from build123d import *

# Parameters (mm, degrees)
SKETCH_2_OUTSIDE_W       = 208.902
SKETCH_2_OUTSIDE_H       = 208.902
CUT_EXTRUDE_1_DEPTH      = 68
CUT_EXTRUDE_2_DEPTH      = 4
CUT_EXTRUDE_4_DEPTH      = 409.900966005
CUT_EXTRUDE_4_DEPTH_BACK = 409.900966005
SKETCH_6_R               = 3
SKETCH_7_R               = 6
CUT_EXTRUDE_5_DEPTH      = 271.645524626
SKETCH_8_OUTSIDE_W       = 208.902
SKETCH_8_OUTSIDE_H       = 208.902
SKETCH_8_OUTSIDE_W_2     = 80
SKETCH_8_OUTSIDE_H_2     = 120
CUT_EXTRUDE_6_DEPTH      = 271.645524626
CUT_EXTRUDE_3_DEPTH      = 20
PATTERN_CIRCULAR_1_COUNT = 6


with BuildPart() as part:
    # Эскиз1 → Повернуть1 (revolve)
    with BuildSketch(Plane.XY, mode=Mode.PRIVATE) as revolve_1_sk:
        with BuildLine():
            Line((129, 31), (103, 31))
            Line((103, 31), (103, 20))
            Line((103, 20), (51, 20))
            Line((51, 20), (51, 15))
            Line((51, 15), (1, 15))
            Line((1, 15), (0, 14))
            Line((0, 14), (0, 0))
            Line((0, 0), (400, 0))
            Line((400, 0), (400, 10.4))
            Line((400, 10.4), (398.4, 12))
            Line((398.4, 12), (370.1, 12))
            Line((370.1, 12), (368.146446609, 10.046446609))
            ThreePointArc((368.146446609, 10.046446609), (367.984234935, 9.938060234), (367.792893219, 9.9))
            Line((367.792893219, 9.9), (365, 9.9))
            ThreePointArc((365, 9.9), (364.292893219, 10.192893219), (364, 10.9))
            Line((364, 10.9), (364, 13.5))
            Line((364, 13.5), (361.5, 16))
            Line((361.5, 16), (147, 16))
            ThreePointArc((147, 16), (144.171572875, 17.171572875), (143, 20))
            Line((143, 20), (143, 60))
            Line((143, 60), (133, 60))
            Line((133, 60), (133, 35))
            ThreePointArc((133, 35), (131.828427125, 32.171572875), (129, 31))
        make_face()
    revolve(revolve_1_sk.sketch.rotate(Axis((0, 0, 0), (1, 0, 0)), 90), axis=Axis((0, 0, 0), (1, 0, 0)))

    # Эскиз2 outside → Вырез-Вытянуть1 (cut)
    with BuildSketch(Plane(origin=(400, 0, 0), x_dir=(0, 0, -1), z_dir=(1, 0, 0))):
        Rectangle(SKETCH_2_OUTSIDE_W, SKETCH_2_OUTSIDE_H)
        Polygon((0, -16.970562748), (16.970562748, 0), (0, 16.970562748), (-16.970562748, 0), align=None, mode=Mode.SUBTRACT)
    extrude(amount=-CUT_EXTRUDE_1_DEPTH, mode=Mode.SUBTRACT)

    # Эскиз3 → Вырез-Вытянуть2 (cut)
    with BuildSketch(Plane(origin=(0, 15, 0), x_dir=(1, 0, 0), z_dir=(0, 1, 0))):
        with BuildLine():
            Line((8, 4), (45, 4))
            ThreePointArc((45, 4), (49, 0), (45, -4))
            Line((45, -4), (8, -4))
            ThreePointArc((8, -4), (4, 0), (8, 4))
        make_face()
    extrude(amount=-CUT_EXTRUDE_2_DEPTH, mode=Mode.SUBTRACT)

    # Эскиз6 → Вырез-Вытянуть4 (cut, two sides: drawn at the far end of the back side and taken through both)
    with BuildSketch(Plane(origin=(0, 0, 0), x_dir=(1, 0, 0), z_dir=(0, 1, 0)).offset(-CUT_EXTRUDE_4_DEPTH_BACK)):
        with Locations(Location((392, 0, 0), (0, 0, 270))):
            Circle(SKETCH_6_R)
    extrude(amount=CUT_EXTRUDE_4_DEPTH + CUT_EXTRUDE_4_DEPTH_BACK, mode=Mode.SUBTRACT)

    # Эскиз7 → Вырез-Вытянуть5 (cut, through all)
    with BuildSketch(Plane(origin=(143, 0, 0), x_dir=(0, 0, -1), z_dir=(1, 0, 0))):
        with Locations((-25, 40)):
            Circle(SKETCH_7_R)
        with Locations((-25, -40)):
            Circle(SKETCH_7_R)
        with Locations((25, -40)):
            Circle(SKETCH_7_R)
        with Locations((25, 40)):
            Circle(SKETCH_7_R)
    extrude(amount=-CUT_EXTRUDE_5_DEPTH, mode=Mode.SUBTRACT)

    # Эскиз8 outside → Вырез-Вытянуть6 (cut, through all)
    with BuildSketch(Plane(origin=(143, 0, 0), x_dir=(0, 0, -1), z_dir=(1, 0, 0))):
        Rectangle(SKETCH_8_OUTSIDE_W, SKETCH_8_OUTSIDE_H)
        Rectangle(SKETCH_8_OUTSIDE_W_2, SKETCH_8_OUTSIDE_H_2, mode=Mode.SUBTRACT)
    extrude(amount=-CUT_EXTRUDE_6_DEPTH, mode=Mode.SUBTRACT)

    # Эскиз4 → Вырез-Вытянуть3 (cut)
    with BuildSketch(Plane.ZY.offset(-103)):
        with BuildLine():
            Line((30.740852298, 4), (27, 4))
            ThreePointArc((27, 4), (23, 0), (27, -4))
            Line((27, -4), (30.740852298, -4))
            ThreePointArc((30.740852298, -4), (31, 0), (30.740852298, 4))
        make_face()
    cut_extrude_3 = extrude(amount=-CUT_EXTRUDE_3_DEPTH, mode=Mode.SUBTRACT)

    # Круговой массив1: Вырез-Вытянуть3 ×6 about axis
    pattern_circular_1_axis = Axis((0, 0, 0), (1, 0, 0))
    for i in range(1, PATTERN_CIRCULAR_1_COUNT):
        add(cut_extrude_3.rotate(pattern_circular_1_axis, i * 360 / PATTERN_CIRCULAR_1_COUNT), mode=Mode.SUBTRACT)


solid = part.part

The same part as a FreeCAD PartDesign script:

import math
import FreeCAD as App
import Part
import Sketcher
Q = App.Units.Quantity

doc = App.newDocument("Part")
body = doc.addObject("PartDesign::Body", "Body")

# Sketch on XY plane
sketch1 = body.newObject("Sketcher::SketchObject", "Sketch")
sketch1.AttachmentSupport = (doc.getObject("XY_Plane"), [""])
sketch1.MapMode = "FlatFace"
sketch1.addGeometry([
    Part.LineSegment(App.Vector(129, 31, 0), App.Vector(103, 31, 0)),  # 0
    Part.LineSegment(App.Vector(103, 31, 0), App.Vector(103, 20, 0)),  # 1
    Part.LineSegment(App.Vector(103, 20, 0), App.Vector(51, 20, 0)),  # 2
    Part.LineSegment(App.Vector(51, 20, 0), App.Vector(51, 15, 0)),  # 3
    Part.LineSegment(App.Vector(51, 15, 0), App.Vector(1, 15, 0)),  # 4
    Part.LineSegment(App.Vector(1, 15, 0), App.Vector(0, 14, 0)),  # 5
    Part.LineSegment(App.Vector(0, 14, 0), App.Vector(0, 0, 0)),  # 6
    Part.LineSegment(App.Vector(0, 0, 0), App.Vector(400, 0, 0)),  # 7
    Part.LineSegment(App.Vector(400, 0, 0), App.Vector(400, 10.4, 0)),  # 8
    Part.LineSegment(App.Vector(400, 10.4, 0), App.Vector(398.4, 12, 0)),  # 9
    Part.LineSegment(App.Vector(398.4, 12, 0), App.Vector(370.1, 12, 0)),  # 10
    Part.LineSegment(App.Vector(370.1, 12, 0), App.Vector(368.15, 10.05, 0)),  # 11
    Part.ArcOfCircle(Part.Circle(App.Vector(367.79, 10.4, 0), App.Vector(0, 0, 1), 0.5), math.radians(-90), math.radians(-45)),  # 12
    Part.LineSegment(App.Vector(367.79, 9.9, 0), App.Vector(365, 9.9, 0)),  # 13
    Part.ArcOfCircle(Part.Circle(App.Vector(365, 10.9, 0), App.Vector(0, 0, 1), 1), math.radians(-180), math.radians(-90)),  # 14
    Part.LineSegment(App.Vector(364, 10.9, 0), App.Vector(364, 13.5, 0)),  # 15
    Part.LineSegment(App.Vector(364, 13.5, 0), App.Vector(361.5, 16, 0)),  # 16
    Part.LineSegment(App.Vector(361.5, 16, 0), App.Vector(147, 16, 0)),  # 17
    Part.ArcOfCircle(Part.Circle(App.Vector(147, 20, 0), App.Vector(0, 0, 1), 4), math.radians(180), math.radians(270)),  # 18
    Part.LineSegment(App.Vector(143, 20, 0), App.Vector(143, 60, 0)),  # 19
    Part.LineSegment(App.Vector(143, 60, 0), App.Vector(133, 60, 0)),  # 20
    Part.LineSegment(App.Vector(133, 60, 0), App.Vector(133, 35, 0)),  # 21
    Part.ArcOfCircle(Part.Circle(App.Vector(129, 35, 0), App.Vector(0, 0, 1), 4), math.radians(-90), math.radians(0)),  # 22
], False)
sketch1.addConstraint([
    Sketcher.Constraint("Coincident", 0, 2, 1, 1),
    Sketcher.Constraint("Coincident", 1, 2, 2, 1),
    Sketcher.Constraint("Coincident", 2, 2, 3, 1),
    Sketcher.Constraint("Coincident", 3, 2, 4, 1),
    Sketcher.Constraint("Coincident", 4, 2, 5, 1),
    Sketcher.Constraint("Coincident", 5, 2, 6, 1),
    Sketcher.Constraint("Coincident", 6, 2, 7, 1),
    Sketcher.Constraint("Coincident", 7, 2, 8, 1),
    Sketcher.Constraint("Coincident", 8, 2, 9, 1),
    Sketcher.Constraint("Coincident", 9, 2, 10, 1),
    Sketcher.Constraint("Coincident", 10, 2, 11, 1),
    Sketcher.Constraint("Tangent", 11, 2, 12, 2),
    Sketcher.Constraint("Tangent", 12, 1, 13, 1),
    Sketcher.Constraint("Tangent", 13, 2, 14, 2),
    Sketcher.Constraint("Tangent", 14, 1, 15, 1),
    Sketcher.Constraint("Coincident", 15, 2, 16, 1),
    Sketcher.Constraint("Coincident", 16, 2, 17, 1),
    Sketcher.Constraint("Tangent", 17, 2, 18, 2),
    Sketcher.Constraint("Tangent", 18, 1, 19, 1),
    Sketcher.Constraint("Coincident", 19, 2, 20, 1),
    Sketcher.Constraint("Coincident", 20, 2, 21, 1),
    Sketcher.Constraint("Tangent", 21, 2, 22, 2),
    Sketcher.Constraint("Tangent", 22, 1, 0, 1),
    Sketcher.Constraint("Horizontal", 0),
    Sketcher.Constraint("Vertical", 1),
    Sketcher.Constraint("Horizontal", 2),
    Sketcher.Constraint("Vertical", 3),
    Sketcher.Constraint("Horizontal", 4),
    Sketcher.Constraint("Vertical", 6),
    Sketcher.Constraint("Horizontal", 7),
    Sketcher.Constraint("Vertical", 8),
    Sketcher.Constraint("Horizontal", 10),
    Sketcher.Constraint("Horizontal", 13),
    Sketcher.Constraint("Vertical", 15),
    Sketcher.Constraint("Horizontal", 17),
    Sketcher.Constraint("Vertical", 19),
    Sketcher.Constraint("Horizontal", 20),
    Sketcher.Constraint("Vertical", 21),
    Sketcher.Constraint("Coincident", 6, 2, -1, 1),
    Sketcher.Constraint("Equal", 18, 22),
    Sketcher.Constraint("Perpendicular", 5, 9),
    Sketcher.Constraint("Perpendicular", 9, 11),
    Sketcher.Constraint("Perpendicular", 11, 16),
    Sketcher.Constraint("Horizontal", 18, 3, 1, 2),
    Sketcher.Constraint("Horizontal", 12, 3, 8, 2),
    Sketcher.Constraint("Radius", 14, Q("1 mm")),
    Sketcher.Constraint("Radius", 18, Q("4 mm")),
    Sketcher.Constraint("Radius", 12, Q("0.5 mm")),
    Sketcher.Constraint("DistanceX", 0, 2, 0, 1, Q("26 mm")),
    Sketcher.Constraint("DistanceX", 2, 2, 2, 1, Q("52 mm")),
    Sketcher.Constraint("DistanceX", 4, 2, 4, 1, Q("50 mm")),
    Sketcher.Constraint("DistanceX", 7, 1, 7, 2, Q("400 mm")),
    Sketcher.Constraint("DistanceX", 20, 2, 20, 1, Q("10 mm")),
    Sketcher.Constraint("DistanceY", 1, 2, 1, 1, Q("11 mm")),
    Sketcher.Constraint("DistanceY", 3, 2, 3, 1, Q("5 mm")),
    Sketcher.Constraint("DistanceY", 6, 2, 6, 1, Q("14 mm")),
    Sketcher.Constraint("DistanceY", 19, 1, 19, 2, Q("40 mm")),
    Sketcher.Constraint("Angle", 5, Q("-135 deg")),
    Sketcher.Constraint("DistanceX", 10, 2, 10, 1, Q("28.3 mm")),
    Sketcher.Constraint("DistanceX", 17, 2, 17, 1, Q("214.5 mm")),
    Sketcher.Constraint("DistanceY", 8, 1, 8, 2, Q("10.4 mm")),
    Sketcher.Constraint("DistanceY", 15, 1, 15, 2, Q("2.6 mm")),
    Sketcher.Constraint("DistanceX", -1, 1, 14, 3, Q("365 mm")),
    Sketcher.Constraint("DistanceY", -1, 1, 9, 2, Q("12 mm")),
])
revolution = body.newObject("PartDesign::Revolution", "Revolution")
revolution.Profile = sketch1
revolution.ReferenceAxis = (sketch1, ["H_Axis"])
revolution.Angle = 360

# Sketch on YZ plane
sketch2 = body.newObject("Sketcher::SketchObject", "Sketch001")
sketch2.AttachmentSupport = (doc.getObject("YZ_Plane"), [""])
sketch2.MapMode = "FlatFace"
sketch2.AttachmentOffset = App.Placement(App.Vector(0, 0, 400), App.Rotation())
sketch2.addGeometry([
    Part.LineSegment(App.Vector(104, 104, 0), App.Vector(-104, 104, 0)),  # 0
    Part.LineSegment(App.Vector(-104, 104, 0), App.Vector(-104, -104, 0)),  # 1
    Part.LineSegment(App.Vector(-104, -104, 0), App.Vector(104, -104, 0)),  # 2
    Part.LineSegment(App.Vector(104, -104, 0), App.Vector(104, 104, 0)),  # 3
    Part.LineSegment(App.Vector(0, -17, 0), App.Vector(-17, 0, 0)),  # 4
    Part.LineSegment(App.Vector(-17, 0, 0), App.Vector(0, 17, 0)),  # 5
    Part.LineSegment(App.Vector(0, 17, 0), App.Vector(17, 0, 0)),  # 6
    Part.LineSegment(App.Vector(17, 0, 0), App.Vector(0, -17, 0)),  # 7
], False)
sketch2.addConstraint([
    Sketcher.Constraint("Coincident", 0, 2, 1, 1),
    Sketcher.Constraint("Coincident", 1, 2, 2, 1),
    Sketcher.Constraint("Coincident", 2, 2, 3, 1),
    Sketcher.Constraint("Coincident", 3, 2, 0, 1),
    Sketcher.Constraint("Coincident", 4, 2, 5, 1),
    Sketcher.Constraint("Coincident", 5, 2, 6, 1),
    Sketcher.Constraint("Coincident", 6, 2, 7, 1),
    Sketcher.Constraint("Coincident", 7, 2, 4, 1),
    Sketcher.Constraint("Horizontal", 0),
    Sketcher.Constraint("Vertical", 1),
    Sketcher.Constraint("Horizontal", 2),
    Sketcher.Constraint("Vertical", 3),
    Sketcher.Constraint("Symmetric", 0, 2, 2, 2, -1, 1),
    Sketcher.Constraint("Symmetric", 4, 2, 6, 2, -1, 1),
    Sketcher.Constraint("Symmetric", 5, 2, 7, 2, -1, 1),
    Sketcher.Constraint("PointOnObject", 4, 2, -1),
    Sketcher.Constraint("PointOnObject", 5, 2, -2),
    Sketcher.Constraint("Perpendicular", 4, 5),
    Sketcher.Constraint("Equal", 2, 1),
    Sketcher.Constraint("Distance", 4, Q("24 mm")),
    Sketcher.Constraint("DistanceX", 0, 2, 0, 1, Q("208.902 mm")),
])
pocket1 = body.newObject("PartDesign::Pocket", "Pocket")
pocket1.Profile = sketch2
pocket1.Length = 68

# Sketch on XZ plane
sketch3 = body.newObject("Sketcher::SketchObject", "Sketch002")
sketch3.AttachmentSupport = (doc.getObject("XZ_Plane"), [""])
sketch3.MapMode = "FlatFace"
sketch3.AttachmentOffset = App.Placement(App.Vector(0, 0, -15), App.Rotation())
sketch3.addGeometry([
    Part.LineSegment(App.Vector(45, -4, 0), App.Vector(8, -4, 0)),
    Part.ArcOfCircle(Part.Circle(App.Vector(8, 0, 0), App.Vector(0, 0, 1), 4), math.radians(90), math.radians(270)),
    Part.LineSegment(App.Vector(8, 4, 0), App.Vector(45, 4, 0)),
    Part.ArcOfCircle(Part.Circle(App.Vector(45, 0, 0), App.Vector(0, 0, 1), 4), math.radians(-90), math.radians(90)),
], False)
sketch3.addConstraint([
    Sketcher.Constraint("Tangent", 0, 2, 1, 2),
    Sketcher.Constraint("Tangent", 1, 1, 2, 1),
    Sketcher.Constraint("Tangent", 2, 2, 3, 2),
    Sketcher.Constraint("Tangent", 3, 1, 0, 1),
    Sketcher.Constraint("Horizontal", 0),
    Sketcher.Constraint("Horizontal", 2),
    Sketcher.Constraint("PointOnObject", 1, 3, -1),
    Sketcher.Constraint("Radius", 1, Q("4 mm")),
    Sketcher.Constraint("DistanceX", 0, 2, 0, 1, Q("37 mm")),
    Sketcher.Constraint("DistanceX", -1, 1, 1, 3, Q("8 mm")),
])
pocket2 = body.newObject("PartDesign::Pocket", "Pocket001")
pocket2.Profile = sketch3
pocket2.Length = 4
pocket2.Reversed = True

# Sketch on XZ plane
sketch4 = body.newObject("Sketcher::SketchObject", "Sketch003")
sketch4.AttachmentSupport = (doc.getObject("XZ_Plane"), [""])
sketch4.MapMode = "FlatFace"
sketch4.addGeometry(Part.Circle(App.Vector(392, 0, 0), App.Vector(0, 0, 1), 3), False)
sketch4.addConstraint([
    Sketcher.Constraint("PointOnObject", 0, 3, -1),
    Sketcher.Constraint("Diameter", 0, Q("6 mm")),
    Sketcher.Constraint("DistanceX", -1, 1, 0, 3, Q("392 mm")),
])
pocket3 = body.newObject("PartDesign::Pocket", "Pocket002")
pocket3.Profile = sketch4
pocket3.Type = "ThroughAll"
pocket3.Midplane = True

# Sketch on YZ plane
sketch5 = body.newObject("Sketcher::SketchObject", "Sketch004")
sketch5.AttachmentSupport = (doc.getObject("YZ_Plane"), [""])
sketch5.MapMode = "FlatFace"
sketch5.AttachmentOffset = App.Placement(App.Vector(0, 0, 143), App.Rotation())
sketch5.addGeometry([
    Part.Circle(App.Vector(40, 25, 0), App.Vector(0, 0, 1), 6),
    Part.Circle(App.Vector(-40, 25, 0), App.Vector(0, 0, 1), 6),
    Part.Circle(App.Vector(-40, -25, 0), App.Vector(0, 0, 1), 6),
    Part.Circle(App.Vector(40, -25, 0), App.Vector(0, 0, 1), 6),
], False)
sketch5.addConstraint([
    Sketcher.Constraint("Equal", 0, 1),
    Sketcher.Constraint("Equal", 1, 2),
    Sketcher.Constraint("Equal", 2, 3),
    Sketcher.Constraint("Symmetric", 0, 3, 2, 3, -1, 1),
    Sketcher.Constraint("Symmetric", 1, 3, 3, 3, -1, 1),
    Sketcher.Constraint("Symmetric", 0, 3, 1, 3, -2),
    Sketcher.Constraint("Diameter", 0, Q("12 mm")),
    Sketcher.Constraint("DistanceX", -1, 1, 0, 3, Q("40 mm")),
    Sketcher.Constraint("DistanceY", -1, 1, 0, 3, Q("25 mm")),
])
pocket4 = body.newObject("PartDesign::Pocket", "Pocket003")
pocket4.Profile = sketch5
pocket4.Type = "ThroughAll"

# Sketch on YZ plane
sketch6 = body.newObject("Sketcher::SketchObject", "Sketch005")
sketch6.AttachmentSupport = (doc.getObject("YZ_Plane"), [""])
sketch6.MapMode = "FlatFace"
sketch6.AttachmentOffset = App.Placement(App.Vector(0, 0, 143), App.Rotation())
sketch6.addGeometry([
    Part.LineSegment(App.Vector(104, 104, 0), App.Vector(-104, 104, 0)),  # 0
    Part.LineSegment(App.Vector(-104, 104, 0), App.Vector(-104, -104, 0)),  # 1
    Part.LineSegment(App.Vector(-104, -104, 0), App.Vector(104, -104, 0)),  # 2
    Part.LineSegment(App.Vector(104, -104, 0), App.Vector(104, 104, 0)),  # 3
    Part.LineSegment(App.Vector(-60, -40, 0), App.Vector(-60, 40, 0)),  # 4
    Part.LineSegment(App.Vector(-60, 40, 0), App.Vector(60, 40, 0)),  # 5
    Part.LineSegment(App.Vector(60, 40, 0), App.Vector(60, -40, 0)),  # 6
    Part.LineSegment(App.Vector(60, -40, 0), App.Vector(-60, -40, 0)),  # 7
], False)
sketch6.addConstraint([
    Sketcher.Constraint("Coincident", 0, 2, 1, 1),
    Sketcher.Constraint("Coincident", 1, 2, 2, 1),
    Sketcher.Constraint("Coincident", 2, 2, 3, 1),
    Sketcher.Constraint("Coincident", 3, 2, 0, 1),
    Sketcher.Constraint("Coincident", 4, 2, 5, 1),
    Sketcher.Constraint("Coincident", 5, 2, 6, 1),
    Sketcher.Constraint("Coincident", 6, 2, 7, 1),
    Sketcher.Constraint("Coincident", 7, 2, 4, 1),
    Sketcher.Constraint("Horizontal", 0),
    Sketcher.Constraint("Vertical", 1),
    Sketcher.Constraint("Horizontal", 2),
    Sketcher.Constraint("Vertical", 3),
    Sketcher.Constraint("Vertical", 4),
    Sketcher.Constraint("Horizontal", 5),
    Sketcher.Constraint("Vertical", 6),
    Sketcher.Constraint("Horizontal", 7),
    Sketcher.Constraint("Symmetric", 0, 2, 2, 2, -1, 1),
    Sketcher.Constraint("Symmetric", 4, 2, 6, 2, -1, 1),
    Sketcher.Constraint("Equal", 2, 1),
    Sketcher.Constraint("DistanceX", 5, 1, 5, 2, Q("120 mm")),
    Sketcher.Constraint("DistanceY", 4, 1, 4, 2, Q("80 mm")),
    Sketcher.Constraint("DistanceX", 0, 2, 0, 1, Q("208.902 mm")),
])
pocket5 = body.newObject("PartDesign::Pocket", "Pocket004")
pocket5.Profile = sketch6
pocket5.Type = "ThroughAll"

# Sketch on YZ plane
sketch7 = body.newObject("Sketcher::SketchObject", "Sketch006")
sketch7.AttachmentSupport = (doc.getObject("YZ_Plane"), [""])
sketch7.MapMode = "FlatFace"
sketch7.AttachmentOffset = App.Placement(App.Vector(0, 0, 103), App.Rotation())
sketch7.addGeometry([
    Part.LineSegment(App.Vector(4, 30.7, 0), App.Vector(4, 27, 0)),
    Part.ArcOfCircle(Part.Circle(App.Vector(0, 27, 0), App.Vector(0, 0, 1), 4), math.radians(180), math.radians(360)),
    Part.LineSegment(App.Vector(-4, 27, 0), App.Vector(-4, 30.7, 0)),
    Part.ArcOfCircle(Part.Circle(App.Vector(0, 0, 0), App.Vector(0, 0, 1), 31), math.radians(82.59), math.radians(97.41)),
], False)
sketch7.addConstraint([
    Sketcher.Constraint("Tangent", 0, 2, 1, 2),
    Sketcher.Constraint("Tangent", 1, 1, 2, 1),
    Sketcher.Constraint("Coincident", 2, 2, 3, 2),
    Sketcher.Constraint("Coincident", 3, 1, 0, 1),
    Sketcher.Constraint("Vertical", 0),
    Sketcher.Constraint("Vertical", 2),
    Sketcher.Constraint("Coincident", 3, 3, -1, 1),
    Sketcher.Constraint("PointOnObject", 1, 3, -2),
    Sketcher.Constraint("Radius", 1, Q("4 mm")),
    Sketcher.Constraint("Radius", 3, Q("31 mm")),
    Sketcher.Constraint("DistanceY", -1, 1, 1, 3, Q("27 mm")),
])
pocket6 = body.newObject("PartDesign::Pocket", "Pocket005")
pocket6.Profile = sketch7
pocket6.Length = 20
pocket6.Reversed = True
doc.recompute()

polarpattern = body.newObject("PartDesign::PolarPattern", "PolarPattern")
polarpattern.Originals = [pocket6]
polarpattern.Axis = (doc.getObject("X_Axis"), [""])
polarpattern.Angle = 360
polarpattern.Occurrences = 6
body.Tip = polarpattern

doc.recompute()
